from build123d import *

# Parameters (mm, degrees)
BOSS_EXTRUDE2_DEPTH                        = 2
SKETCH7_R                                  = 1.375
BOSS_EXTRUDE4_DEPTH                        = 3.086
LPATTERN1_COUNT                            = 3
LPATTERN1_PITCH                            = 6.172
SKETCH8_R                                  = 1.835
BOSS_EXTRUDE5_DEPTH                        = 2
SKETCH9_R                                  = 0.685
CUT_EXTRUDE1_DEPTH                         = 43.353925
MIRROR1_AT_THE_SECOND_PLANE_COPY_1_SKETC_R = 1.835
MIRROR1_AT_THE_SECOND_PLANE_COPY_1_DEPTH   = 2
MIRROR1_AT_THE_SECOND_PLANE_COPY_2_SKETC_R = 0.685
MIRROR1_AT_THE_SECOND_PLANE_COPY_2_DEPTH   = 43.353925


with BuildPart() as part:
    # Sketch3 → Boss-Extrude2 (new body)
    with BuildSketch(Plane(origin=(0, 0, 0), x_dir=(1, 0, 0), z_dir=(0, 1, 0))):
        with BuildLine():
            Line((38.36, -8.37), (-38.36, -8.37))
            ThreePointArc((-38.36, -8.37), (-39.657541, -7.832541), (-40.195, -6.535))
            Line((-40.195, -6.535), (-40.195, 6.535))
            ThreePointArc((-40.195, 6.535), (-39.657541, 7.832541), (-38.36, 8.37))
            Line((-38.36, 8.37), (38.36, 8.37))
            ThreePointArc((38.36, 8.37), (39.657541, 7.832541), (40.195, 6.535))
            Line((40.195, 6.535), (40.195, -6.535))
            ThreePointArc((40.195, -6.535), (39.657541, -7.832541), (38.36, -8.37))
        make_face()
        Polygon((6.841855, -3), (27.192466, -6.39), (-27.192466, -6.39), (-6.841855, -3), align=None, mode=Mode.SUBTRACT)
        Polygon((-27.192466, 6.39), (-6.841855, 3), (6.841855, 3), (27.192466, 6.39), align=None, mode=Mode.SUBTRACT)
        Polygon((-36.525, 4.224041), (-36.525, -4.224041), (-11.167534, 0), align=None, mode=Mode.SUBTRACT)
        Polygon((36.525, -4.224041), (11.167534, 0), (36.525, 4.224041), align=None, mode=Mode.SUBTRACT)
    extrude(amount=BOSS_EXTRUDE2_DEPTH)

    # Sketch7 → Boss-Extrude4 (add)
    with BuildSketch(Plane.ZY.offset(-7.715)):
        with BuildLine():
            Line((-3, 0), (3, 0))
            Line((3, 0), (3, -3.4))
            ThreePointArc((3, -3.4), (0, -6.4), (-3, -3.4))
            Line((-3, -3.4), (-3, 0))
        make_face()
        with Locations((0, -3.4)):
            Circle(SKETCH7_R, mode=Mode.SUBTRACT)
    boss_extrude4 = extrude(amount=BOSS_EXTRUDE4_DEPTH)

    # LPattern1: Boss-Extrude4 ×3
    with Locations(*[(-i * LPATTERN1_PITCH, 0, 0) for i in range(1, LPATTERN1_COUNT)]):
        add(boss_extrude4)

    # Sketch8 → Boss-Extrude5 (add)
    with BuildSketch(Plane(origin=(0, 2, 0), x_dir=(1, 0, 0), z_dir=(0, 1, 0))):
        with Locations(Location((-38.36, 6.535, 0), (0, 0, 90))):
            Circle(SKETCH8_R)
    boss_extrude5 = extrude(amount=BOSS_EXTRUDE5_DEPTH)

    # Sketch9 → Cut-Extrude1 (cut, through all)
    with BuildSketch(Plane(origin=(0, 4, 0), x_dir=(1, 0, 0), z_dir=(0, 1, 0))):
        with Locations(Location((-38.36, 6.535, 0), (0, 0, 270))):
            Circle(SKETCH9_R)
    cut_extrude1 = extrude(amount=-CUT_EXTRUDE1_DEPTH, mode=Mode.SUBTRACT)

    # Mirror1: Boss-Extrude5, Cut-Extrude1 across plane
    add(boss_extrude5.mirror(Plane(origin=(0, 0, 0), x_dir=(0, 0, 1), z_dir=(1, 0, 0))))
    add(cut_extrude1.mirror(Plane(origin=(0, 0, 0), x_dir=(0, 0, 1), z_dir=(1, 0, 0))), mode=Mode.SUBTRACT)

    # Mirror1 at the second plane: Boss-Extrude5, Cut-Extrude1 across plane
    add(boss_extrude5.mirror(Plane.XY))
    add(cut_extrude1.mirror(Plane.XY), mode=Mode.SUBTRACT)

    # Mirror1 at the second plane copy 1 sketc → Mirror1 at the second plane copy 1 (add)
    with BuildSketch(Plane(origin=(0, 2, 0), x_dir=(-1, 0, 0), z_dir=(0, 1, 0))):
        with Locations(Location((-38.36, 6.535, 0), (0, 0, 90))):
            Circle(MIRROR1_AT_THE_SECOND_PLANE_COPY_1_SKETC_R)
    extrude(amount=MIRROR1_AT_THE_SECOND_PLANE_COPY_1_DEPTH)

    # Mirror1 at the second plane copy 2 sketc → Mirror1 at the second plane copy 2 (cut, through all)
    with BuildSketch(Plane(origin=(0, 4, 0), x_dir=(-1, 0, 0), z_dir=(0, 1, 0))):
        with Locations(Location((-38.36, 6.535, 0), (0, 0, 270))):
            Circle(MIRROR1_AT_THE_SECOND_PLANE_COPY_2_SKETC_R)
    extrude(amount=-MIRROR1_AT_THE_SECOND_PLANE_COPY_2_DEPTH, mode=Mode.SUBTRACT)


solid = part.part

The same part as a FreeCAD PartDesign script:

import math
import FreeCAD as App
import Part
import Sketcher

doc = App.newDocument("Part")
body = doc.addObject("PartDesign::Body", "Body")

# Sketch on XZ plane
sketch1 = body.newObject("Sketcher::SketchObject", "Sketch")
sketch1.AttachmentSupport = (doc.getObject("XZ_Plane"), [""])
sketch1.MapMode = "FlatFace"
sketch1.addGeometry(Part.LineSegment(App.Vector(-38.4, 8.4, 0), App.Vector(38.4, 8.4, 0)), False)
sketch1.addGeometry(Part.ArcOfCircle(Part.Circle(App.Vector(38.4, 6.5, 0), App.Vector(0, 0, 1), 1.8), math.radians(0), math.radians(90)), False)
sketch1.addGeometry(Part.LineSegment(App.Vector(40.2, 6.5, 0), App.Vector(40.2, -6.5, 0)), False)
sketch1.addGeometry(Part.ArcOfCircle(Part.Circle(App.Vector(38.4, -6.5, 0), App.Vector(0, 0, 1), 1.8), math.radians(-90), math.radians(0)), False)
sketch1.addGeometry(Part.LineSegment(App.Vector(38.4, -8.4, 0), App.Vector(-38.4, -8.4, 0)), False)
sketch1.addGeometry(Part.ArcOfCircle(Part.Circle(App.Vector(-38.4, -6.5, 0), App.Vector(0, 0, 1), 1.8), math.radians(180), math.radians(270)), False)
sketch1.addGeometry(Part.LineSegment(App.Vector(-40.2, -6.5, 0), App.Vector(-40.2, 6.5, 0)), False)
sketch1.addGeometry(Part.ArcOfCircle(Part.Circle(App.Vector(-38.4, 6.5, 0), App.Vector(0, 0, 1), 1.8), math.radians(90), math.radians(180)), False)
sketch1.addGeometry(Part.LineSegment(App.Vector(6.8, 3, 0), App.Vector(27.2, 6.4, 0)), False)
sketch1.addGeometry(Part.LineSegment(App.Vector(27.2, 6.4, 0), App.Vector(-27.2, 6.4, 0)), False)
sketch1.addGeometry(Part.LineSegment(App.Vector(-27.2, 6.4, 0), App.Vector(-6.8, 3, 0)), False)
sketch1.addGeometry(Part.LineSegment(App.Vector(-6.8, 3, 0), App.Vector(6.8, 3, 0)), False)
sketch1.addGeometry(Part.LineSegment(App.Vector(36.5, 4.2, 0), App.Vector(11.2, 0, 0)), False)
sketch1.addGeometry(Part.LineSegment(App.Vector(11.2, 0, 0), App.Vector(36.5, -4.2, 0)), False)
sketch1.addGeometry(Part.LineSegment(App.Vector(36.5, -4.2, 0), App.Vector(36.5, 4.2, 0)), False)
sketch1.addGeometry(Part.LineSegment(App.Vector(-36.5, -4.2, 0), App.Vector(-11.2, 0, 0)), False)
sketch1.addGeometry(Part.LineSegment(App.Vector(-11.2, 0, 0), App.Vector(-36.5, 4.2, 0)), False)
sketch1.addGeometry(Part.LineSegment(App.Vector(-36.5, 4.2, 0), App.Vector(-36.5, -4.2, 0)), False)
sketch1.addGeometry(Part.LineSegment(App.Vector(-27.2, -6.4, 0), App.Vector(27.2, -6.4, 0)), False)
sketch1.addGeometry(Part.LineSegment(App.Vector(27.2, -6.4, 0), App.Vector(6.8, -3, 0)), False)
sketch1.addGeometry(Part.LineSegment(App.Vector(6.8, -3, 0), App.Vector(-6.8, -3, 0)), False)
sketch1.addGeometry(Part.LineSegment(App.Vector(-6.8, -3, 0), App.Vector(-27.2, -6.4, 0)), False)
sketch1.addConstraint(Sketcher.Constraint("Tangent", 0, 2, 1, 2))
sketch1.addConstraint(Sketcher.Constraint("Tangent", 1, 1, 2, 1))
sketch1.addConstraint(Sketcher.Constraint("Tangent", 2, 2, 3, 2))
sketch1.addConstraint(Sketcher.Constraint("Tangent", 3, 1, 4, 1))
sketch1.addConstraint(Sketcher.Constraint("Tangent", 4, 2, 5, 2))
sketch1.addConstraint(Sketcher.Constraint("Tangent", 5, 1, 6, 1))
sketch1.addConstraint(Sketcher.Constraint("Tangent", 6, 2, 7, 2))
sketch1.addConstraint(Sketcher.Constraint("Tangent", 7, 1, 0, 1))
sketch1.addConstraint(Sketcher.Constraint("Coincident", 8, 2, 9, 1))
sketch1.addConstraint(Sketcher.Constraint("Coincident", 9, 2, 10, 1))
sketch1.addConstraint(Sketcher.Constraint("Coincident", 10, 2, 11, 1))
sketch1.addConstraint(Sketcher.Constraint("Coincident", 11, 2, 8, 1))
sketch1.addConstraint(Sketcher.Constraint("Coincident", 12, 2, 13, 1))
sketch1.addConstraint(Sketcher.Constraint("Coincident", 13, 2, 14, 1))
sketch1.addConstraint(Sketcher.Constraint("Coincident", 14, 2, 12, 1))
sketch1.addConstraint(Sketcher.Constraint("Coincident", 15, 2, 16, 1))
sketch1.addConstraint(Sketcher.Constraint("Coincident", 16, 2, 17, 1))
sketch1.addConstraint(Sketcher.Constraint("Coincident", 17, 2, 15, 1))
sketch1.addConstraint(Sketcher.Constraint("Coincident", 18, 2, 19, 1))
sketch1.addConstraint(Sketcher.Constraint("Coincident", 19, 2, 20, 1))
sketch1.addConstraint(Sketcher.Constraint("Coincident", 20, 2, 21, 1))
sketch1.addConstraint(Sketcher.Constraint("Coincident", 21, 2, 18, 1))
sketch1.addConstraint(Sketcher.Constraint("Horizontal", 0))
sketch1.addConstraint(Sketcher.Constraint("Vertical", 2))
sketch1.addConstraint(Sketcher.Constraint("Horizontal", 4))
sketch1.addConstraint(Sketcher.Constraint("Vertical", 6))
sketch1.addConstraint(Sketcher.Constraint("Horizontal", 9))
sketch1.addConstraint(Sketcher.Constraint("Horizontal", 11))
sketch1.addConstraint(Sketcher.Constraint("Vertical", 14))
sketch1.addConstraint(Sketcher.Constraint("Vertical", 17))
sketch1.addConstraint(Sketcher.Constraint("Horizontal", 18))
sketch1.addConstraint(Sketcher.Constraint("Horizontal", 20))
sketch1.addConstraint(Sketcher.Constraint("Equal", 1, 3))
sketch1.addConstraint(Sketcher.Constraint("Equal", 3, 5))
sketch1.addConstraint(Sketcher.Constraint("Equal", 5, 7))
sketch1.addConstraint(Sketcher.Constraint("Symmetric", 1, 3, 5, 3, -1, 1))
sketch1.addConstraint(Sketcher.Constraint("Symmetric", 12, 2, 15, 2, -1, 1))
sketch1.addConstraint(Sketcher.Constraint("Symmetric", 13, 2, 16, 2, -1, 1))
sketch1.addConstraint(Sketcher.Constraint("Symmetric", 9, 2, 18, 2, -1, 1))
sketch1.addConstraint(Sketcher.Constraint("Symmetric", 10, 2, 19, 2, -1, 1))
sketch1.addConstraint(Sketcher.Constraint("PointOnObject", 12, 2, -1))
sketch1.addConstraint(Sketcher.Constraint("Parallel", 8, 12))
sketch1.addConstraint(Sketcher.Constraint("Parallel", 10, 13))
sketch1.addConstraint(Sketcher.Constraint("Parallel", 12, 15))
sketch1.addConstraint(Sketcher.Constraint("Parallel", 15, 21))
sketch1.addConstraint(Sketcher.Constraint("Horizontal", 14, 2, 16, 2))
sketch1.addConstraint(Sketcher.Constraint("Vertical", 8, 2, 18, 2))
sketch1.addConstraint(Sketcher.Constraint("Vertical", 10, 2, 20, 2))
sketch1.addConstraint(Sketcher.Constraint("DistanceY", -1, 1, 10, 2, 3.0))
sketch1.addConstraint(Sketcher.Constraint("Radius", 1, 1.835))
sketch1.addConstraint(Sketcher.Constraint("DistanceX", 0, 1, 0, 2, 76.72))
sketch1.addConstraint(Sketcher.Constraint("DistanceY", 2, 2, 2, 1, 13.07))
sketch1.addConstraint(Sketcher.Constraint("DistanceY", -1, 1, 8, 2, 6.39))
sketch1.addConstraint(Sketcher.Constraint("DistanceX", 13, 2, 2, 2, 3.67))
sketch1.addConstraint(Sketcher.Constraint("DistanceX", 11, 1, 11, 2, 13.68371))
sketch1.addConstraint(Sketcher.Constraint("Distance", 8, 20.631032))
sketch1.addConstraint(Sketcher.Constraint("Distance", 12, 25.706879))
pad1 = body.newObject("PartDesign::Pad", "Pad")
pad1.Profile = sketch1
pad1.Length = 2
pad1.Reversed = True

# Sketch on YZ plane
sketch2 = body.newObject("Sketcher::SketchObject", "Sketch001")
sketch2.AttachmentSupport = (doc.getObject("YZ_Plane"), [""])
sketch2.MapMode = "FlatFace"
sketch2.AttachmentOffset = App.Placement(App.Vector(0, 0, 7.715), App.Rotation())
sketch2.addGeometry(Part.LineSegment(App.Vector(0, 3, 0), App.Vector(0, -3, 0)), False)
sketch2.addGeometry(Part.LineSegment(App.Vector(0, -3, 0), App.Vector(-3.4, -3, 0)), False)
sketch2.addGeometry(Part.ArcOfCircle(Part.Circle(App.Vector(-3.4, 0, 0), App.Vector(0, 0, 1), 3), math.radians(90), math.radians(270)), False)
sketch2.addGeometry(Part.LineSegment(App.Vector(-3.4, 3, 0), App.Vector(0, 3, 0)), False)
sketch2.addGeometry(Part.Circle(App.Vector(-3.4, 0, 0), App.Vector(0, 0, 1), 1.4), False)
sketch2.addConstraint(Sketcher.Constraint("Coincident", 0, 2, 1, 1))
sketch2.addConstraint(Sketcher.Constraint("Tangent", 1, 2, 2, 2))
sketch2.addConstraint(Sketcher.Constraint("Tangent", 2, 1, 3, 1))
sketch2.addConstraint(Sketcher.Constraint("Coincident", 3, 2, 0, 1))
sketch2.addConstraint(Sketcher.Constraint("Vertical", 0))
sketch2.addConstraint(Sketcher.Constraint("Horizontal", 1))
sketch2.addConstraint(Sketcher.Constraint("Horizontal", 3))
sketch2.addConstraint(Sketcher.Constraint("Coincident", 4, 3, 2, 3))
sketch2.addConstraint(Sketcher.Constraint("Symmetric", 0, 2, 3, 2, -1, 1))
sketch2.addConstraint(Sketcher.Constraint("Radius", 2, 3.0))
sketch2.addConstraint(Sketcher.Constraint("Diameter", 4, 2.75))
sketch2.addConstraint(Sketcher.Constraint("DistanceX", 1, 2, 1, 1, 3.4))
pad2 = body.newObject("PartDesign::Pad", "Pad001")
pad2.Profile = sketch2
pad2.Length = 3.086
pad2.Reversed = True
doc.recompute()

linearpattern = body.newObject("PartDesign::LinearPattern", "LinearPattern")
linearpattern.Originals = [pad2]
linearpattern.Direction = (doc.getObject("X_Axis"), [""])
linearpattern.Mode = "offset"
linearpattern.Offset = 6.172
linearpattern.Occurrences = 3
linearpattern.Reversed = True
body.Tip = linearpattern

# Sketch on XZ plane
sketch3 = body.newObject("Sketcher::SketchObject", "Sketch002")
sketch3.AttachmentSupport = (doc.getObject("XZ_Plane"), [""])
sketch3.MapMode = "FlatFace"
sketch3.AttachmentOffset = App.Placement(App.Vector(0, 0, -2), App.Rotation())
sketch3.addGeometry(Part.Circle(App.Vector(-38.4, -6.5, 0), App.Vector(0, 0, 1), 1.8), False)
sketch3.addConstraint(Sketcher.Constraint("Diameter", 0, 3.67))
sketch3.addConstraint(Sketcher.Constraint("DistanceX", 0, 3, -1, 1, 38.36))
sketch3.addConstraint(Sketcher.Constraint("DistanceY", 0, 3, -1, 1, 6.535))
pad3 = body.newObject("PartDesign::Pad", "Pad002")
pad3.Profile = sketch3
pad3.Length = 2
pad3.Reversed = True

# Sketch on XZ plane
sketch4 = body.newObject("Sketcher::SketchObject", "Sketch003")
sketch4.AttachmentSupport = (doc.getObject("XZ_Plane"), [""])
sketch4.MapMode = "FlatFace"
sketch4.AttachmentOffset = App.Placement(App.Vector(0, 0, -4), App.Rotation())
sketch4.addGeometry(Part.Circle(App.Vector(-38.4, -6.5, 0), App.Vector(0, 0, 1), 0.7), False)
sketch4.addConstraint(Sketcher.Constraint("Diameter", 0, 1.37))
sketch4.addConstraint(Sketcher.Constraint("DistanceX", 0, 3, -1, 1, 38.36))
sketch4.addConstraint(Sketcher.Constraint("DistanceY", 0, 3, -1, 1, 6.535))
pocket1 = body.newObject("PartDesign::Pocket", "Pocket")
pocket1.Profile = sketch4
pocket1.Type = "ThroughAll"
pocket1.Reversed = True
doc.recompute()

mirrored = body.newObject("PartDesign::Mirrored", "Mirrored")
mirrored.Originals = [pad3, pocket1]
mirrored.MirrorPlane = (doc.getObject("YZ_Plane"), [""])
body.Tip = mirrored
doc.recompute()

mirrored2 = body.newObject("PartDesign::Mirrored", "Mirrored001")
mirrored2.Originals = [pad3, pocket1]
mirrored2.MirrorPlane = (doc.getObject("XY_Plane"), [""])
body.Tip = mirrored2

# Sketch on XZ plane
sketch5 = body.newObject("Sketcher::SketchObject", "Sketch004")
sketch5.AttachmentSupport = (doc.getObject("XZ_Plane"), [""])
sketch5.MapMode = "FlatFace"
sketch5.AttachmentOffset = App.Placement(App.Vector(0, 0, -2), App.Rotation())
sketch5.addGeometry(Part.Circle(App.Vector(38.4, 6.5, 0), App.Vector(0, 0, 1), 1.8), False)
sketch5.addConstraint(Sketcher.Constraint("Diameter", 0, 3.67))
sketch5.addConstraint(Sketcher.Constraint("DistanceX", -1, 1, 0, 3, 38.36))
sketch5.addConstraint(Sketcher.Constraint("DistanceY", -1, 1, 0, 3, 6.535))
pad4 = body.newObject("PartDesign::Pad", "Pad003")
pad4.Profile = sketch5
pad4.Length = 2
pad4.Reversed = True

# Sketch on XZ plane
sketch6 = body.newObject("Sketcher::SketchObject", "Sketch005")
sketch6.AttachmentSupport = (doc.getObject("XZ_Plane"), [""])
sketch6.MapMode = "FlatFace"
sketch6.AttachmentOffset = App.Placement(App.Vector(0, 0, -4), App.Rotation())
sketch6.addGeometry(Part.Circle(App.Vector(38.4, 6.5, 0), App.Vector(0, 0, 1), 0.7), False)
sketch6.addConstraint(Sketcher.Constraint("Diameter", 0, 1.37))
sketch6.addConstraint(Sketcher.Constraint("DistanceX", -1, 1, 0, 3, 38.36))
sketch6.addConstraint(Sketcher.Constraint("DistanceY", -1, 1, 0, 3, 6.535))
pocket2 = body.newObject("PartDesign::Pocket", "Pocket001")
pocket2.Profile = sketch6
pocket2.Type = "ThroughAll"
pocket2.Reversed = True

doc.recompute()
